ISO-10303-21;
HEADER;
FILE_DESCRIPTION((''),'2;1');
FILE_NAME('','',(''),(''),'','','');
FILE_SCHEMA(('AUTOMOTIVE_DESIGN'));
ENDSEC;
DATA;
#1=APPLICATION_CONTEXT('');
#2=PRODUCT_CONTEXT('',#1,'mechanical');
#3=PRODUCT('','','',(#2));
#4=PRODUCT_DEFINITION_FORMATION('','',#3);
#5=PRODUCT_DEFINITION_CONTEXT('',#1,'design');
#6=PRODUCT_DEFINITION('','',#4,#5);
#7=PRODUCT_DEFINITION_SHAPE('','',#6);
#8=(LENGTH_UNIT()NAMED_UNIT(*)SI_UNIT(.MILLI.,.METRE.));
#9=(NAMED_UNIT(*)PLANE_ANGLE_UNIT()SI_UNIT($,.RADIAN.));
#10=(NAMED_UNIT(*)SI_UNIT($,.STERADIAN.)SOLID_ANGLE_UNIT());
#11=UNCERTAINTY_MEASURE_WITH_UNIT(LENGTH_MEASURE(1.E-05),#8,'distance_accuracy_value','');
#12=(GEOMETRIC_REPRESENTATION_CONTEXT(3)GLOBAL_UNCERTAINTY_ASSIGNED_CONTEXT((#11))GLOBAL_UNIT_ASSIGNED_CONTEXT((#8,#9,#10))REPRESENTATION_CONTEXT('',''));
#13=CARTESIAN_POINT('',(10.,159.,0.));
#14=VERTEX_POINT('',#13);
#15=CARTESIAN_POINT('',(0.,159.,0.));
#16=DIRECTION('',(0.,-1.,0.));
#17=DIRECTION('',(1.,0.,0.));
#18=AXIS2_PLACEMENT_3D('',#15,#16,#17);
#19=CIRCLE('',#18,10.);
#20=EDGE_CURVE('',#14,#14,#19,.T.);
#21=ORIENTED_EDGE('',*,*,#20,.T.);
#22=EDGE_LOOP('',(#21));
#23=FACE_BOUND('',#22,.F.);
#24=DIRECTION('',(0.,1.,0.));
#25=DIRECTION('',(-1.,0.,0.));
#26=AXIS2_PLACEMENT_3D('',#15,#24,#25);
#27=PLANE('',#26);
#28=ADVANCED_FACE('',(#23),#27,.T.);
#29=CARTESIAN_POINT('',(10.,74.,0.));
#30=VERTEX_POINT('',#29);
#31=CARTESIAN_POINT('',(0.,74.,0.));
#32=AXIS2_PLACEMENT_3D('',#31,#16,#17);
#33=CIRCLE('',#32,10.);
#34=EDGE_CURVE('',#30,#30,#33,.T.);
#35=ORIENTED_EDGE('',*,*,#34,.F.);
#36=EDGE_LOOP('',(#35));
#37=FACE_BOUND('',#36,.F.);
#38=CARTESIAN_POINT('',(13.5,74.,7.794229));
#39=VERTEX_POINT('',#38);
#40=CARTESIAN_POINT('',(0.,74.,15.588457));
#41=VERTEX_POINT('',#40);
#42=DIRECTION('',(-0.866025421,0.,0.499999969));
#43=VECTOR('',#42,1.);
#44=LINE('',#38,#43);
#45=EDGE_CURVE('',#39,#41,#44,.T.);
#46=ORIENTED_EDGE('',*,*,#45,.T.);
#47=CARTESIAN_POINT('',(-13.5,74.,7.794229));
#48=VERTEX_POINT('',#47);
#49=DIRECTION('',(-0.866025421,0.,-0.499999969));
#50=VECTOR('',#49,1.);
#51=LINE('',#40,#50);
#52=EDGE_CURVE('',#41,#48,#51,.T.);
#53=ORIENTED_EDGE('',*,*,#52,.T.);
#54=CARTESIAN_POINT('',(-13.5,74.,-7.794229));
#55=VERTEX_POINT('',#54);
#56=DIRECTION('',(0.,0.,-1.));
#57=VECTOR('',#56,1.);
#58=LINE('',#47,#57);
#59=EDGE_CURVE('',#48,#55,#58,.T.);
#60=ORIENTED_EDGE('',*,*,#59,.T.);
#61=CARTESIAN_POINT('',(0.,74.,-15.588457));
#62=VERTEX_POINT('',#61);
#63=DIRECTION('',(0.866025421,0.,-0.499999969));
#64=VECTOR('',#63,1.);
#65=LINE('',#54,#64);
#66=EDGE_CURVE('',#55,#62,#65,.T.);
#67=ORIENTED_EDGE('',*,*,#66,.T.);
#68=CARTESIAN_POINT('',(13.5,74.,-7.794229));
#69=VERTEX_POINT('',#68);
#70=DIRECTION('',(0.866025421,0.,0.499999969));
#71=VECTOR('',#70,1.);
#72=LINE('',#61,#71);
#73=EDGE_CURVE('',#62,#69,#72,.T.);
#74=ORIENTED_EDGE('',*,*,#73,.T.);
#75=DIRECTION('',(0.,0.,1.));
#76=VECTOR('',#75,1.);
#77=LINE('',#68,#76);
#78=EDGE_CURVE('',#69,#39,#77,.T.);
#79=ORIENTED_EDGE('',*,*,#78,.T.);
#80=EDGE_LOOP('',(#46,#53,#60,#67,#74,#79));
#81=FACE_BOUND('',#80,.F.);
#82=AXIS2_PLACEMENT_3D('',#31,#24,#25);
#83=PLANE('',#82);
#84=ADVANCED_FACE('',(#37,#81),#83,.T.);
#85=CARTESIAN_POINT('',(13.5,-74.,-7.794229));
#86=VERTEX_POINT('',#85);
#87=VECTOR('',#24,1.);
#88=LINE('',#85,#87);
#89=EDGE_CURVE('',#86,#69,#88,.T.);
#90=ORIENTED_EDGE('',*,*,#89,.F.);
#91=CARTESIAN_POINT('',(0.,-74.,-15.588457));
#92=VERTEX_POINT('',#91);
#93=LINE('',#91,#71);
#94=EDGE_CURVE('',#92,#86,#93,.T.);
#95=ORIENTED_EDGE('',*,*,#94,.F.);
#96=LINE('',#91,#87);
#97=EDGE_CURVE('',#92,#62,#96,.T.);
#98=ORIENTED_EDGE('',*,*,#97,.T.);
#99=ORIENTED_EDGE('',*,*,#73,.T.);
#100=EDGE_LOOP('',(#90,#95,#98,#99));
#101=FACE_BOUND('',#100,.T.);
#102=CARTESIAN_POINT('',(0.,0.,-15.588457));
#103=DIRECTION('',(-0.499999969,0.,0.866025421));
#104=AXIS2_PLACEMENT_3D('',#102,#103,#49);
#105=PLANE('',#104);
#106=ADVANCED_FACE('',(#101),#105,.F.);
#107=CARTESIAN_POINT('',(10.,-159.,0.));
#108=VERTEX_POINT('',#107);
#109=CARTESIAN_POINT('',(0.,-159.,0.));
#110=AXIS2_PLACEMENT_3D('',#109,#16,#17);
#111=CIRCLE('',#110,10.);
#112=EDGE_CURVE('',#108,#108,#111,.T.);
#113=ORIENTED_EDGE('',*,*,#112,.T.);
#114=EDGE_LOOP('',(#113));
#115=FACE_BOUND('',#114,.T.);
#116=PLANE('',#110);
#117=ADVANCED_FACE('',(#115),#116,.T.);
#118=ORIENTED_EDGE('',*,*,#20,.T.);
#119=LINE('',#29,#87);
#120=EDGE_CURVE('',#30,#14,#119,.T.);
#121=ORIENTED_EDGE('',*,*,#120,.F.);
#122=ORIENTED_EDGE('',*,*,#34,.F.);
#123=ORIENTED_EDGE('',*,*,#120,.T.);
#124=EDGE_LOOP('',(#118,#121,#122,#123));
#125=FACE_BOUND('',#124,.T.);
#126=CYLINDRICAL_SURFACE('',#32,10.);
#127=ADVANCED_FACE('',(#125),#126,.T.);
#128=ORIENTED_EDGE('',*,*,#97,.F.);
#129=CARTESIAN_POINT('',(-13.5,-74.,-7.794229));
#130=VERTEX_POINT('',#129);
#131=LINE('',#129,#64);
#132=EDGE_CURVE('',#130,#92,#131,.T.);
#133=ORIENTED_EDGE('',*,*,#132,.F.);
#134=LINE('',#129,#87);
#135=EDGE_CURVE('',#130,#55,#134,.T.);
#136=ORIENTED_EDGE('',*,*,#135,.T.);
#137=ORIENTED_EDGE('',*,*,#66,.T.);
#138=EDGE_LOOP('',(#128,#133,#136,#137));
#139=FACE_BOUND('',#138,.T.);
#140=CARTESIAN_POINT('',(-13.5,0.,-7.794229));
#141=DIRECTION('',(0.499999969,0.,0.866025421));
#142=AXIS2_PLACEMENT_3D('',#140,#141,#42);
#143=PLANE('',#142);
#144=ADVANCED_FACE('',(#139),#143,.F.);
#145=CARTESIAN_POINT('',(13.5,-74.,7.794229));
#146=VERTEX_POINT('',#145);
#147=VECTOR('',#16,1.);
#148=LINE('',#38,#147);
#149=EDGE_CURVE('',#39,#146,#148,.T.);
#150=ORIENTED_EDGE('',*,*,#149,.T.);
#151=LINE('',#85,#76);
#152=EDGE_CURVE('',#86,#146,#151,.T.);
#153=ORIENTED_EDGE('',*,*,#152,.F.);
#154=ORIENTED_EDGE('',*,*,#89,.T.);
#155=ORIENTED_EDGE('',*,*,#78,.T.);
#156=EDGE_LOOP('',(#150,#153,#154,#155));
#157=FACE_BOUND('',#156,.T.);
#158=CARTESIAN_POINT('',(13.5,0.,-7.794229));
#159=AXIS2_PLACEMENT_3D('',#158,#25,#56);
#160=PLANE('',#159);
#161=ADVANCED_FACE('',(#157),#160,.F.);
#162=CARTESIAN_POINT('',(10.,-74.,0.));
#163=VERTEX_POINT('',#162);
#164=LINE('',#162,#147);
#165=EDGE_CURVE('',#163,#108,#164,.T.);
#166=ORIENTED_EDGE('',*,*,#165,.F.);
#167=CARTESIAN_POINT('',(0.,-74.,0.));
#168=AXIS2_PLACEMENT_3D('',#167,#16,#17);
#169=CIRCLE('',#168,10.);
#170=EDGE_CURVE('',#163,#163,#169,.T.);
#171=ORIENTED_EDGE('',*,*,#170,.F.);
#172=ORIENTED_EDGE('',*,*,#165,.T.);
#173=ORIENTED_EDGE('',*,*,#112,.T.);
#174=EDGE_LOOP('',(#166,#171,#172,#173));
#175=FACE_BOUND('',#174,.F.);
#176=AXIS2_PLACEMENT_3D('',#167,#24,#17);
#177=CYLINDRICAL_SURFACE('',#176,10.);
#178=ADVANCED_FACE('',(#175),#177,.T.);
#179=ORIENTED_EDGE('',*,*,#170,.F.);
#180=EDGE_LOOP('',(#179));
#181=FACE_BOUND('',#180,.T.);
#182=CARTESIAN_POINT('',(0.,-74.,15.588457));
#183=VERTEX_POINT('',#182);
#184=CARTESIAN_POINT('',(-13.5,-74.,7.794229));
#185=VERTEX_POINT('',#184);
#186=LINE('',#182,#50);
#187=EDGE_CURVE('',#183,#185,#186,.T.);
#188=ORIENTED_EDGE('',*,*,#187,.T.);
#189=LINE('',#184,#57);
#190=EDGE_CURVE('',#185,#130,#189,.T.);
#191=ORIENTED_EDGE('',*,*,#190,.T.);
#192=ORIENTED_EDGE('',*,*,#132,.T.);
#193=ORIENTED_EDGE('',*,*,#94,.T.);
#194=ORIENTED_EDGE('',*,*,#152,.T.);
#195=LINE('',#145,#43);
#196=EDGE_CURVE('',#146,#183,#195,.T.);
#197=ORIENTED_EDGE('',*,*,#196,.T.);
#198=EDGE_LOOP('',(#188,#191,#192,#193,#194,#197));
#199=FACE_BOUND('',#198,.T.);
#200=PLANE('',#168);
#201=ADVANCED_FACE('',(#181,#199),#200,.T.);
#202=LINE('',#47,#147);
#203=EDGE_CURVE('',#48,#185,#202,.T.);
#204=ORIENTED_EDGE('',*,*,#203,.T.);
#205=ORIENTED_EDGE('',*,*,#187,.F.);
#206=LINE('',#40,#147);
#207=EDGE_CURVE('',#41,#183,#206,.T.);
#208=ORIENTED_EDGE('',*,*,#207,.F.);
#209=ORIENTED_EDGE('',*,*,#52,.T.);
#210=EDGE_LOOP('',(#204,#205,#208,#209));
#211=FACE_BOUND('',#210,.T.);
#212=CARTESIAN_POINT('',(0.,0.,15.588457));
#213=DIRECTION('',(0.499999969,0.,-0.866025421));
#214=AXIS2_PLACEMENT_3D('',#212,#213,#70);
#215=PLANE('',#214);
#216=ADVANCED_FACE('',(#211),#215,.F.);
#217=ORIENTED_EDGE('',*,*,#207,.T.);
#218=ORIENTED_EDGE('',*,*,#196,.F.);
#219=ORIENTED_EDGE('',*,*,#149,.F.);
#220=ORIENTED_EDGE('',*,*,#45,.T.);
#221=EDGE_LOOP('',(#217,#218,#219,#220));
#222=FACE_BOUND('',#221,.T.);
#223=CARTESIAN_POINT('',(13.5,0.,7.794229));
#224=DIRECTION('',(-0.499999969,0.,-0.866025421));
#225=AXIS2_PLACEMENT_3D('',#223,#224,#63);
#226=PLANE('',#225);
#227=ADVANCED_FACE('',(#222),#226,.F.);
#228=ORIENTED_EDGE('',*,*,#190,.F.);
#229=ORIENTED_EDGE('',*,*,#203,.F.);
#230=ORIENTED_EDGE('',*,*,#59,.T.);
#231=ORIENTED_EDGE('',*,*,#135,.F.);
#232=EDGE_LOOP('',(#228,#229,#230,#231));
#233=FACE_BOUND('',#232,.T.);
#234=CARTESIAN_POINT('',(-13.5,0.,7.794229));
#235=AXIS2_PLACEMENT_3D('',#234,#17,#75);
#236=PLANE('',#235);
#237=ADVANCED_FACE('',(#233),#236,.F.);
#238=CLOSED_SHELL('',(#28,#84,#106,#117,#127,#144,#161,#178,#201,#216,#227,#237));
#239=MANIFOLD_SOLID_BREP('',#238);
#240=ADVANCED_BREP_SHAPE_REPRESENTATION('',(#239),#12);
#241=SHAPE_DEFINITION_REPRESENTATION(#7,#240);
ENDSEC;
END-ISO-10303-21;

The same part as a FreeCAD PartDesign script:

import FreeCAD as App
import Part
import Sketcher
Q = App.Units.Quantity

doc = App.newDocument("Part")
params = doc.addObject("Spreadsheet::Sheet", "Params")
for row, (alias, value) in enumerate([
    ("pad1_length", "74 mm"),
    ("sketch2_diameter", "20 mm"),
    ("pad2_length", "85 mm"),
], start=1):
    params.set(f"A{row}", alias)
    params.set(f"B{row}", "=" + value)
    params.setAlias(f"B{row}", alias)

body = doc.addObject("PartDesign::Body", "Body")

sketch1 = body.newObject("Sketcher::SketchObject", "Sketch")
sketch1.AttachmentSupport = (doc.getObject("XZ_Plane"), [""])
sketch1.MapMode = "FlatFace"
sketch1.addGeometry([
    Part.LineSegment(App.Vector(13.5, -7.794229, 0), App.Vector(13.5, 7.794229, 0)),
    Part.LineSegment(App.Vector(13.5, 7.794229, 0), App.Vector(0, 15.588457, 0)),
    Part.LineSegment(App.Vector(0, 15.588457, 0), App.Vector(-13.5, 7.794229, 0)),
    Part.LineSegment(App.Vector(-13.5, 7.794229, 0), App.Vector(-13.5, -7.794229, 0)),
    Part.LineSegment(App.Vector(-13.5, -7.794229, 0), App.Vector(0, -15.588457, 0)),
    Part.LineSegment(App.Vector(0, -15.588457, 0), App.Vector(13.5, -7.794229, 0)),
], False)
sketch1.addConstraint([
    Sketcher.Constraint("Coincident", 0, 2, 1, 1),
    Sketcher.Constraint("Coincident", 1, 2, 2, 1),
    Sketcher.Constraint("Coincident", 2, 2, 3, 1),
    Sketcher.Constraint("Coincident", 3, 2, 4, 1),
    Sketcher.Constraint("Coincident", 4, 2, 5, 1),
    Sketcher.Constraint("Coincident", 5, 2, 0, 1),
    Sketcher.Constraint("Vertical", 0),
    Sketcher.Constraint("Vertical", 3),
    Sketcher.Constraint("Symmetric", 0, 2, 3, 2, -1, 1),
    Sketcher.Constraint("Symmetric", 1, 2, 4, 2, -1, 1),
    Sketcher.Constraint("PointOnObject", 1, 2, -2),
    Sketcher.Constraint("Parallel", 2, 5),
    Sketcher.Constraint("Horizontal", 0, 2, 2, 2),
    Sketcher.Constraint("Angle", 1, Q("150.000002 deg")),
    Sketcher.Constraint("DistanceX", 2, 2, 0, 2, 27.0),
    Sketcher.Constraint("DistanceY", 0, 1, 0, 2, 15.588458),
])
pad1 = body.newObject("PartDesign::Pad", "Pad")
pad1.Profile = sketch1
pad1.setExpression("Length", "Params.pad1_length")

sketch2 = body.newObject("Sketcher::SketchObject", "Sketch001")
sketch2.AttachmentSupport = (doc.getObject("XZ_Plane"), [""])
sketch2.MapMode = "FlatFace"
sketch2.AttachmentOffset = App.Placement(App.Vector(0, 0, 74), App.Rotation())
sketch2.addGeometry(Part.Circle(App.Vector(0, 0, 0), App.Vector(0, 0, 1), 10), False)
sketch2.addConstraint([
    Sketcher.Constraint("Coincident", 0, 3, -1, 1),
    Sketcher.Constraint("Diameter", 0, 20.0),
])
sketch2.setExpression("Constraints[1]", "Params.sketch2_diameter")
pad2 = body.newObject("PartDesign::Pad", "Pad001")
pad2.Profile = sketch2
pad2.setExpression("Length", "Params.pad2_length")
body2 = doc.addObject("PartDesign::Body", "Body001")
doc.recompute()

body2.BaseFeature = body
doc.recompute()

mirroring = doc.addObject("Part::Mirroring", "Mirroring")
mirroring.Source = body
mirroring.Base = App.Vector(0, 0, 0)
mirroring.Normal = App.Vector(0, 1, 0)
body3 = doc.addObject("PartDesign::Body", "Body002")
body3.BaseFeature = mirroring
boolean = body2.newObject("PartDesign::Boolean", "Boolean")
boolean.Type = "Fuse"
boolean.addObjects([body3])
doc.recompute()
mirroring.Visibility = False

doc.recompute()
